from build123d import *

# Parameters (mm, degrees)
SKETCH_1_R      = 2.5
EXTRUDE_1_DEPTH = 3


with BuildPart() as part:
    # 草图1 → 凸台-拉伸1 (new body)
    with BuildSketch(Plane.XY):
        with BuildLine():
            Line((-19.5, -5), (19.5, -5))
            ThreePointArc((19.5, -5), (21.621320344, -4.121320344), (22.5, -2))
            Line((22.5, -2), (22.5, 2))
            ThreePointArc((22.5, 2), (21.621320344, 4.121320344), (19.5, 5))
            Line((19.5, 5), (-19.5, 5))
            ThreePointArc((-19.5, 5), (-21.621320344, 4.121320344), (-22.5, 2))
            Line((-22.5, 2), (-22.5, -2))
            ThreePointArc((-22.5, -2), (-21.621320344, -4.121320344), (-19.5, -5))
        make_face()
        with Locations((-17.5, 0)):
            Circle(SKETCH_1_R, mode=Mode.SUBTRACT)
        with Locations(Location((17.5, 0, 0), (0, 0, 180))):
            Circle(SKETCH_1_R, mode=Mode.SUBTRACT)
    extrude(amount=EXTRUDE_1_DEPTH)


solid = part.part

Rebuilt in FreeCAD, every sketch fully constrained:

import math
import FreeCAD as App
import Part
import Sketcher

V = App.Vector
Q = App.Units.Quantity

doc = App.newDocument("Part")
params = doc.addObject("Spreadsheet::Sheet", "Params")
for row, (alias, value) in enumerate([
    ("sketch1_diameter", "5 mm"),
    ("sketch1_radius", "3 mm"),
    ("sketch1_width", "39 mm"),
    ("sketch1_height", "4 mm"),
    ("pad1_length", "3 mm"),
], start=1):
    params.set(f"A{row}", alias)
    params.set(f"B{row}", "=" + value)
    params.setAlias(f"B{row}", alias)

body = doc.addObject("PartDesign::Body", "Body")

# Sketch on XY plane
sketch1 = body.newObject("Sketcher::SketchObject", "Sketch")
sketch1.AttachmentSupport = (doc.getObject("XY_Plane"), [""])
sketch1.MapMode = "FlatFace"
sketch1.addGeometry([
    Part.LineSegment(V(-19.5, -5, 0), V(19.5, -5, 0)),  # 0
    Part.ArcOfCircle(Part.Circle(V(19.5, -2, 0), V(0, 0, 1), 3), math.radians(-90), math.radians(0)),  # 1
    Part.LineSegment(V(22.5, -2, 0), V(22.5, 2, 0)),  # 2
    Part.ArcOfCircle(Part.Circle(V(19.5, 2, 0), V(0, 0, 1), 3), math.radians(0), math.radians(90)),  # 3
    Part.LineSegment(V(19.5, 5, 0), V(-19.5, 5, 0)),  # 4
    Part.ArcOfCircle(Part.Circle(V(-19.5, 2, 0), V(0, 0, 1), 3), math.radians(90), math.radians(180)),  # 5
    Part.LineSegment(V(-22.5, 2, 0), V(-22.5, -2, 0)),  # 6
    Part.ArcOfCircle(Part.Circle(V(-19.5, -2, 0), V(0, 0, 1), 3), math.radians(180), math.radians(270)),  # 7
    Part.Circle(V(-17.5, 0, 0), V(0, 0, 1), 2.5),  # 8
    Part.Circle(V(17.5, 0, 0), V(0, 0, 1), 2.5),  # 9
], False)
sketch1.addConstraint([
    Sketcher.Constraint("Tangent", 0, 2, 1, 1),
    Sketcher.Constraint("Tangent", 1, 2, 2, 1),
    Sketcher.Constraint("Tangent", 2, 2, 3, 1),
    Sketcher.Constraint("Tangent", 3, 2, 4, 1),
    Sketcher.Constraint("Tangent", 4, 2, 5, 1),
    Sketcher.Constraint("Tangent", 5, 2, 6, 1),
    Sketcher.Constraint("Tangent", 6, 2, 7, 1),
    Sketcher.Constraint("Tangent", 7, 2, 0, 1),
    Sketcher.Constraint("Horizontal", 0),
    Sketcher.Constraint("Vertical", 2),
    Sketcher.Constraint("Horizontal", 4),
    Sketcher.Constraint("Vertical", 6),
    Sketcher.Constraint("Equal", 1, 3),
    Sketcher.Constraint("Equal", 3, 5),
    Sketcher.Constraint("Equal", 5, 7),
    Sketcher.Constraint("Equal", 8, 9),
    Sketcher.Constraint("Symmetric", 1, 3, 5, 3, -1, 1),
    Sketcher.Constraint("Symmetric", 8, 3, 9, 3, -1, 1),
    Sketcher.Constraint("PointOnObject", 8, 3, -1),
    Sketcher.Constraint("Diameter", 8, Q("5 mm")),
    Sketcher.Constraint("Radius", 1, Q("3 mm")),
    Sketcher.Constraint("DistanceX", 0, 1, 0, 2, Q("39 mm")),
    Sketcher.Constraint("DistanceY", 2, 1, 2, 2, Q("4 mm")),
    Sketcher.Constraint("DistanceX", 5, 3, 8, 3, Q("2 mm")),
])
sketch1.setExpression("Constraints[19]", "Params.sketch1_diameter")
sketch1.setExpression("Constraints[20]", "Params.sketch1_radius")
sketch1.setExpression("Constraints[21]", "Params.sketch1_width")
sketch1.setExpression("Constraints[22]", "Params.sketch1_height")
pad1 = body.newObject("PartDesign::Pad", "Pad")
pad1.Profile = sketch1
pad1.setExpression("Length", "Params.pad1_length")

doc.recompute()
